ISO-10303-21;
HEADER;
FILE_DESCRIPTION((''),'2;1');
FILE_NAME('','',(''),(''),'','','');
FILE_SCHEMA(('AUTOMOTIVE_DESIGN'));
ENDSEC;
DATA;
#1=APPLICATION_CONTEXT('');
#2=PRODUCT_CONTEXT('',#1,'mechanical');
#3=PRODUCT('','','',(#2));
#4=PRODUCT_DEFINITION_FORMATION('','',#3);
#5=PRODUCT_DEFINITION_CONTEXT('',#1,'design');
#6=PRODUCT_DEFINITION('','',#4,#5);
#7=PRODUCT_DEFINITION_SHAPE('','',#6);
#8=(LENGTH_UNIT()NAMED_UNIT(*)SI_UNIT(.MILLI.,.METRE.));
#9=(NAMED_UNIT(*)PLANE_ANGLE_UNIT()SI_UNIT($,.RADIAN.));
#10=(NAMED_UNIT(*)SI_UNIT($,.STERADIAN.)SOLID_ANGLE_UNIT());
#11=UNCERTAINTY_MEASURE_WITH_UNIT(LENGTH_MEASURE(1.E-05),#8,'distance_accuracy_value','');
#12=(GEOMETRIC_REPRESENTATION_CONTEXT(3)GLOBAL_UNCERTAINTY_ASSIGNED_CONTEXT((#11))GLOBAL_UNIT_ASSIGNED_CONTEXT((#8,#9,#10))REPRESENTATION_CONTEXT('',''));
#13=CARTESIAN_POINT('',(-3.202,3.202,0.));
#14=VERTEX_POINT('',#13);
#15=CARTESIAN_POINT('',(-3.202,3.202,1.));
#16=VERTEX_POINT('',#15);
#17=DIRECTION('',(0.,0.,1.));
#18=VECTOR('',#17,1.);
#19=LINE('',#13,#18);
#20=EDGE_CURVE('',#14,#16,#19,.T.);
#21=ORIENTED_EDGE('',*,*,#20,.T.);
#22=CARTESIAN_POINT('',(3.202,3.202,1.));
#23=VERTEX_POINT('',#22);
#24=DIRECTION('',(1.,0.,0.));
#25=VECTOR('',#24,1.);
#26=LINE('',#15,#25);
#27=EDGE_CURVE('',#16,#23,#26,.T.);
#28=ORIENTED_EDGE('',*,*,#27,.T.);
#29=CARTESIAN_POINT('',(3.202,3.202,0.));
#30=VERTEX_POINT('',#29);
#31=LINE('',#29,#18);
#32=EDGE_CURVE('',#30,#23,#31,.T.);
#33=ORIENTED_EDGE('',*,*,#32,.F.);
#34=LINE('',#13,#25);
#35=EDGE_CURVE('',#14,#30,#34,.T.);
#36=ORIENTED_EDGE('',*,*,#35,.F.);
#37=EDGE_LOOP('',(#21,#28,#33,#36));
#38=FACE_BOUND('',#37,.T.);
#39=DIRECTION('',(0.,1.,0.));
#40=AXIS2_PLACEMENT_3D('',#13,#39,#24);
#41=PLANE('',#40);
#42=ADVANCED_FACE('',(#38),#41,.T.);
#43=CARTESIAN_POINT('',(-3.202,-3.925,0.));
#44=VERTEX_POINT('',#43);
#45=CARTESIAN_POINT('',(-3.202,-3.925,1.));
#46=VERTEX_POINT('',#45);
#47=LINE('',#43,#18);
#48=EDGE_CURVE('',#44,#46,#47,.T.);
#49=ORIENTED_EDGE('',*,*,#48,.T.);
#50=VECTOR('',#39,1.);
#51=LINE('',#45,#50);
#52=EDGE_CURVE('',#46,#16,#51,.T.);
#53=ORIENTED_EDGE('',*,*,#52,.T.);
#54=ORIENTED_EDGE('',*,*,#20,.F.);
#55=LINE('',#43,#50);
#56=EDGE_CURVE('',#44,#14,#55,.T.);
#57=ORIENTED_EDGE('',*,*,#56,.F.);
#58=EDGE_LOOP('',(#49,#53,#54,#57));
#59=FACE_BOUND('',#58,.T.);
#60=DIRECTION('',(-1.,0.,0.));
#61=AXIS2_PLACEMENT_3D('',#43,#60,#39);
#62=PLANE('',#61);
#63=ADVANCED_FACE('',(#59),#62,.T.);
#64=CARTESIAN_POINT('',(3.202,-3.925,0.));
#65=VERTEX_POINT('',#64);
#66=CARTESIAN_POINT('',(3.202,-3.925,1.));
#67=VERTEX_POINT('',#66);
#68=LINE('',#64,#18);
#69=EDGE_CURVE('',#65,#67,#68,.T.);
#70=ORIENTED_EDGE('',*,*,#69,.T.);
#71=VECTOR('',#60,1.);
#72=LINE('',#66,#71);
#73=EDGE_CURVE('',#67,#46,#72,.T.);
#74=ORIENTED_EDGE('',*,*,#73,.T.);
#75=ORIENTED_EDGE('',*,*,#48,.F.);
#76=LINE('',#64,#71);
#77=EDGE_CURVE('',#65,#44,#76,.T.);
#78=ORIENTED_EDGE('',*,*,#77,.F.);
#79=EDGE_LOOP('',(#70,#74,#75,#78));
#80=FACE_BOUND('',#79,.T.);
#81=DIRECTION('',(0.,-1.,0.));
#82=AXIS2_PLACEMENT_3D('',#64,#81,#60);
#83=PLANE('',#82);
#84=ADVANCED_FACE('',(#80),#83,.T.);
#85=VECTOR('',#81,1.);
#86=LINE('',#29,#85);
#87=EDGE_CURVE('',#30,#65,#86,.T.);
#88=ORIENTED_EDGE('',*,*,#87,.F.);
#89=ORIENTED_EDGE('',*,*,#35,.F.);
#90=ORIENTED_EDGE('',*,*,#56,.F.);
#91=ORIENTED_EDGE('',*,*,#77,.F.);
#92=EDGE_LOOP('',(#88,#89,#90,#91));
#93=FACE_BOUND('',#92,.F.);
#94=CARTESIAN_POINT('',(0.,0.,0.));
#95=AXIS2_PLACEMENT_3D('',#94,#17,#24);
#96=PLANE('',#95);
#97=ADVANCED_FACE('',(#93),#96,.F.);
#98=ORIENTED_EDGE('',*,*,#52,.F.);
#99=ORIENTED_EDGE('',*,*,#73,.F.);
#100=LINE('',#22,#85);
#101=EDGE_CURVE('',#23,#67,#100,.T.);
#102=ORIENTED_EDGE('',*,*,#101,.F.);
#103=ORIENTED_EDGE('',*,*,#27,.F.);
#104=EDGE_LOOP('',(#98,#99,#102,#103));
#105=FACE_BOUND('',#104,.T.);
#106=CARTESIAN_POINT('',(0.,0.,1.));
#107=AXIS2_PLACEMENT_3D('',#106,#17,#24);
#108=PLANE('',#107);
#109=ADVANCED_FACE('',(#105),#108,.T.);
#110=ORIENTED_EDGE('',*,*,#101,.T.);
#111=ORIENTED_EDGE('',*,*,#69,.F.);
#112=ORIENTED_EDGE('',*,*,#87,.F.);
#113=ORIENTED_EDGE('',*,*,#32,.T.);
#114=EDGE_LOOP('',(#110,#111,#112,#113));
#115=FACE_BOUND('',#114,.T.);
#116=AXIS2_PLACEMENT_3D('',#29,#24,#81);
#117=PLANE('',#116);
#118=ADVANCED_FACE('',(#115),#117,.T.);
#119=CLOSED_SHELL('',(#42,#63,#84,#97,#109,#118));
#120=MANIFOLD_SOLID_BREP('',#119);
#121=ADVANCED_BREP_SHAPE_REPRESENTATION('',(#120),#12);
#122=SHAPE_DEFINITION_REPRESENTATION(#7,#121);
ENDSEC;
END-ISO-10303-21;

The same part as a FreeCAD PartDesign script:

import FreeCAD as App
import Part
import Sketcher
from FreeCAD import Vector

doc = App.newDocument("Part")
body = doc.addObject("PartDesign::Body", "Body")

sketch1 = body.newObject("Sketcher::SketchObject", "Sketch")
sketch1.AttachmentSupport = (doc.getObject("XY_Plane"), [""])
sketch1.MapMode = "FlatFace"
sketch1.addGeometry([
    Part.LineSegment(Vector(-3, 3, 0), Vector(-3, -4, 0)),
    Part.LineSegment(Vector(-3, -4, 0), Vector(3, -4, 0)),
    Part.LineSegment(Vector(3, -4, 0), Vector(3, 3, 0)),
    Part.LineSegment(Vector(3, 3, 0), Vector(-3, 3, 0)),
], False)
sketch1.addConstraint([
    Sketcher.Constraint("Coincident", 0, 2, 1, 1),
    Sketcher.Constraint("Coincident", 1, 2, 2, 1),
    Sketcher.Constraint("Coincident", 2, 2, 3, 1),
    Sketcher.Constraint("Coincident", 3, 2, 0, 1),
    Sketcher.Constraint("Vertical", 0),
    Sketcher.Constraint("Horizontal", 1),
    Sketcher.Constraint("Vertical", 2),
    Sketcher.Constraint("Horizontal", 3),
    Sketcher.Constraint("DistanceX", 1, 1, 1, 2, 6.404),
    Sketcher.Constraint("DistanceY", 0, 2, 0, 1, 7.127),
    Sketcher.Constraint("DistanceX", 0, 2, -1, 1, 3.202),
    Sketcher.Constraint("DistanceY", 0, 2, -1, 1, 3.925),
])
pad1 = body.newObject("PartDesign::Pad", "Pad")
pad1.Profile = sketch1
pad1.Length = 1

doc.recompute()
